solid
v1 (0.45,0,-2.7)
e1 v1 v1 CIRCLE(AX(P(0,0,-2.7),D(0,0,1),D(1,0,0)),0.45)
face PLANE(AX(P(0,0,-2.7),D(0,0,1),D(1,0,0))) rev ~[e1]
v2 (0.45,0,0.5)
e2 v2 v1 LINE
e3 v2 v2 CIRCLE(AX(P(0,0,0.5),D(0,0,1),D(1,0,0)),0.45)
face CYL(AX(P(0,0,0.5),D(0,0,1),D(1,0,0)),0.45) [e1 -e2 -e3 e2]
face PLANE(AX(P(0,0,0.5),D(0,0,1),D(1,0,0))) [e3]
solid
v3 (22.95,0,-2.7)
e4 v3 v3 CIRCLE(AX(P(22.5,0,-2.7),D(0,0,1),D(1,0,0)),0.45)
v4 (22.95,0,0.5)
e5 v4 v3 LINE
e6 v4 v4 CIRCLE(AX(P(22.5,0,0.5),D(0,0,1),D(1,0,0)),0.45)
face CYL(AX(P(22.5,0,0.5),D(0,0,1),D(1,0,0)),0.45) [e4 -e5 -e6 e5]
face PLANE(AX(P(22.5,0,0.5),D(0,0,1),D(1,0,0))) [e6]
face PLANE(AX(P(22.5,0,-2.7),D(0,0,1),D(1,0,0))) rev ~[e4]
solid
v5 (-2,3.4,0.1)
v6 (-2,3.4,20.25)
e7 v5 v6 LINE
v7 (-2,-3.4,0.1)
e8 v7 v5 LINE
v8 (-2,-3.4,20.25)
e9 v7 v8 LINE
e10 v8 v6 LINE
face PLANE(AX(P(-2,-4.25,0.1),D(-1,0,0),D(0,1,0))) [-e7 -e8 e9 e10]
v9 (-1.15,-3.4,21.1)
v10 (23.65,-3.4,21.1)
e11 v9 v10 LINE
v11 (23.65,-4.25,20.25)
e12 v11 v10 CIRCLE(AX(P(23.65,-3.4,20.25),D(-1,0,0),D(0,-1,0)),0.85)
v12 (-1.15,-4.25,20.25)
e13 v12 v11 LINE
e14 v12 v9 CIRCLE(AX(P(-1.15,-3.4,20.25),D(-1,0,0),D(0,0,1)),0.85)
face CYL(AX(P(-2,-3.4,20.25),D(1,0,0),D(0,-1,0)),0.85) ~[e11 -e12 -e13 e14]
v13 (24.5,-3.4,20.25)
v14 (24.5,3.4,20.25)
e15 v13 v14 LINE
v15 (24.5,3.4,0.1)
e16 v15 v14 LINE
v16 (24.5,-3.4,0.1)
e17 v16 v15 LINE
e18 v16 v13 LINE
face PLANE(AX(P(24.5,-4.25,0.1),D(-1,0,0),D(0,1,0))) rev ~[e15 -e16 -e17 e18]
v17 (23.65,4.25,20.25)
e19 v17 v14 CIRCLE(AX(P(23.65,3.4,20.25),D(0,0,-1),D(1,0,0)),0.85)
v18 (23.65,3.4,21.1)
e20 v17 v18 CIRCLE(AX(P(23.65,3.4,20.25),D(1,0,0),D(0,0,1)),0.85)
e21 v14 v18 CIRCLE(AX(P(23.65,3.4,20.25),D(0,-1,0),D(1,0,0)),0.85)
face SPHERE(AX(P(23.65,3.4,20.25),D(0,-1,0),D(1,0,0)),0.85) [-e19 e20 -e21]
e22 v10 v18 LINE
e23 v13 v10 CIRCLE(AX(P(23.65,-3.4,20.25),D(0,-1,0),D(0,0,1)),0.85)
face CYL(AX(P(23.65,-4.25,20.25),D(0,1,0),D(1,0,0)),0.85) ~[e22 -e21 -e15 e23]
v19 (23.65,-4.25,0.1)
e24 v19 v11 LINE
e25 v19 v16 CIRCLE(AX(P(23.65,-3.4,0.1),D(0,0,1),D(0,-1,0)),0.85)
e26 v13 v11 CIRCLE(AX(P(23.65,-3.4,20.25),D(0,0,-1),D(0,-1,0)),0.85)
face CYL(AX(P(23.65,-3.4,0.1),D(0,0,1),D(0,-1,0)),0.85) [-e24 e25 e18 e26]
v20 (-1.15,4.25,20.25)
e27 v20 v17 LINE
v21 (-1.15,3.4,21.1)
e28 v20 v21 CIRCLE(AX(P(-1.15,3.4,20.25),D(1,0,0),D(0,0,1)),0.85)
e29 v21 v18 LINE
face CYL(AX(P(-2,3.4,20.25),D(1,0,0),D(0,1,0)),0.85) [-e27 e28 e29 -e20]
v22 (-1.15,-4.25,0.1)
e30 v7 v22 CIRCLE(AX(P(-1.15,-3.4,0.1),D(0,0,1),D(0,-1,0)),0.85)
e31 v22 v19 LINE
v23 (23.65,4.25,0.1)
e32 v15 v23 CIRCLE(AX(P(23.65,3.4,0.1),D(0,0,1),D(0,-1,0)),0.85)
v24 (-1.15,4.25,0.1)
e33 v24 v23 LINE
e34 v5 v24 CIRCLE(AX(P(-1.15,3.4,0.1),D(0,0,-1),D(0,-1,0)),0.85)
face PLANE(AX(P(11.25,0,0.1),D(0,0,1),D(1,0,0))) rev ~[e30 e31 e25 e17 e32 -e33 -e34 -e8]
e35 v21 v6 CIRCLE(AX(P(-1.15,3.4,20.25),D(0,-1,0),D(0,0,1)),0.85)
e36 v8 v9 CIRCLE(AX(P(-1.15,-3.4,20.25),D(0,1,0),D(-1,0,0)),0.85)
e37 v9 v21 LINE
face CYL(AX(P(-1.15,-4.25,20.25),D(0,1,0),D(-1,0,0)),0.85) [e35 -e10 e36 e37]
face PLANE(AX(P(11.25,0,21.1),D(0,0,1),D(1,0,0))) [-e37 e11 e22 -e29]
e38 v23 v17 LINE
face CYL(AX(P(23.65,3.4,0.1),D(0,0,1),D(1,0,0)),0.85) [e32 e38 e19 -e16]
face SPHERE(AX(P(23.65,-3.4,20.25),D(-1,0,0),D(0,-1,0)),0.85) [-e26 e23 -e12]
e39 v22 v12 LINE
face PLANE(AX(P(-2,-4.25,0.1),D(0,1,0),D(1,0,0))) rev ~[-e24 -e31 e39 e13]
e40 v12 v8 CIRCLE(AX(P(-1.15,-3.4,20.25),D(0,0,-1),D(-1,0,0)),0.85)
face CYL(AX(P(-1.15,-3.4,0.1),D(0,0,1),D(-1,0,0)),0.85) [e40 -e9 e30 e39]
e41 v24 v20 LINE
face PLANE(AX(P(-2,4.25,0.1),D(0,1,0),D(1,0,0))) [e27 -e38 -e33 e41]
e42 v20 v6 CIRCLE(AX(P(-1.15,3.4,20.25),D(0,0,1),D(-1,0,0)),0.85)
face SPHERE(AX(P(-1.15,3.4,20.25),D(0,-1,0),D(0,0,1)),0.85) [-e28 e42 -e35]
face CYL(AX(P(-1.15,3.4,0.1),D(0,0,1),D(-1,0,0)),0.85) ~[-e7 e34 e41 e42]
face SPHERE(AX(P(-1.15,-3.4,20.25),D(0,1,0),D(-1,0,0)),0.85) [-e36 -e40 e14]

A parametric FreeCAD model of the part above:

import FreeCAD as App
import Part
import Sketcher
Q = App.Units.Quantity


def edges_at(feature, points):
    """Names of the edges that pass closest to the given points."""
    edges = feature.Shape.Edges
    near = lambda p: min(range(len(edges)), key=lambda i: edges[i].distToShape(Part.Vertex(*p))[0])
    return sorted({f"Edge{near(p) + 1}" for p in points})

doc = App.newDocument("Part")
body = doc.addObject("PartDesign::Body", "Body")

# Sketch on XY plane
sketch1 = body.newObject("Sketcher::SketchObject", "Sketch")
sketch1.AttachmentSupport = (doc.getObject("XY_Plane"), [""])
sketch1.MapMode = "FlatFace"
sketch1.AttachmentOffset = App.Placement(App.Vector(0, 0, 0.1), App.Rotation())
sketch1.addGeometry([
    Part.LineSegment(App.Vector(-2, 4, 0), App.Vector(-2, -4, 0)),
    Part.LineSegment(App.Vector(-2, -4, 0), App.Vector(24, -4, 0)),
    Part.LineSegment(App.Vector(24, -4, 0), App.Vector(24, 4, 0)),
    Part.LineSegment(App.Vector(24, 4, 0), App.Vector(-2, 4, 0)),
], False)
sketch1.addConstraint([
    Sketcher.Constraint("Coincident", 0, 2, 1, 1),
    Sketcher.Constraint("Coincident", 1, 2, 2, 1),
    Sketcher.Constraint("Coincident", 2, 2, 3, 1),
    Sketcher.Constraint("Coincident", 3, 2, 0, 1),
    Sketcher.Constraint("Vertical", 0),
    Sketcher.Constraint("Horizontal", 1),
    Sketcher.Constraint("Vertical", 2),
    Sketcher.Constraint("Horizontal", 3),
    Sketcher.Constraint("DistanceX", 1, 1, 1, 2, Q("26.5 mm")),
    Sketcher.Constraint("DistanceY", 0, 2, 0, 1, Q("8.5 mm")),
    Sketcher.Constraint("DistanceX", 0, 2, -1, 1, Q("2 mm")),
    Sketcher.Constraint("DistanceY", 0, 2, -1, 1, Q("4.25 mm")),
])
pad1 = body.newObject("PartDesign::Pad", "Pad")
pad1.Profile = sketch1
pad1.Length = 21
doc.recompute()

fillet = body.newObject("PartDesign::Fillet", "Fillet")
fillet.Base = (pad1, edges_at(pad1, [
    (-2, 0, 21.1),
    (-2, -4.25, 10.6),
    (11.25, -4.25, 21.1),
    (24.5, -4.25, 10.6),
    (24.5, 0, 21.1),
    (24.5, 4.25, 10.6),
    (11.25, 4.25, 21.1),
    (-2, 4.25, 10.6),
]))
fillet.Radius = 0.85
body2 = doc.addObject("PartDesign::Body", "Body001")
body2.AllowCompound = True

# Sketch on XY plane
sketch2 = body2.newObject("Sketcher::SketchObject", "Sketch001")
sketch2.AttachmentSupport = (doc.getObject("XY_Plane001"), [""])
sketch2.MapMode = "FlatFace"
sketch2.AttachmentOffset = App.Placement(App.Vector(0, 0, 0.5), App.Rotation())
sketch2.addGeometry([
    Part.Circle(App.Vector(0, 0, 0), App.Vector(0, 0, 1), 0.45),
    Part.Circle(App.Vector(22.5, 0, 0), App.Vector(0, 0, 1), 0.45),
], False)
sketch2.addConstraint([
    Sketcher.Constraint("Coincident", 0, 3, -1, 1),
    Sketcher.Constraint("Equal", 0, 1),
    Sketcher.Constraint("PointOnObject", 1, 3, -1),
    Sketcher.Constraint("Diameter", 0, Q("0.9 mm")),
    Sketcher.Constraint("DistanceX", -1, 1, 1, 3, Q("22.5 mm")),
])
pad2 = body2.newObject("PartDesign::Pad", "Pad001")
pad2.Profile = sketch2
pad2.Length = 3.2
pad2.Reversed = True

doc.recompute()
